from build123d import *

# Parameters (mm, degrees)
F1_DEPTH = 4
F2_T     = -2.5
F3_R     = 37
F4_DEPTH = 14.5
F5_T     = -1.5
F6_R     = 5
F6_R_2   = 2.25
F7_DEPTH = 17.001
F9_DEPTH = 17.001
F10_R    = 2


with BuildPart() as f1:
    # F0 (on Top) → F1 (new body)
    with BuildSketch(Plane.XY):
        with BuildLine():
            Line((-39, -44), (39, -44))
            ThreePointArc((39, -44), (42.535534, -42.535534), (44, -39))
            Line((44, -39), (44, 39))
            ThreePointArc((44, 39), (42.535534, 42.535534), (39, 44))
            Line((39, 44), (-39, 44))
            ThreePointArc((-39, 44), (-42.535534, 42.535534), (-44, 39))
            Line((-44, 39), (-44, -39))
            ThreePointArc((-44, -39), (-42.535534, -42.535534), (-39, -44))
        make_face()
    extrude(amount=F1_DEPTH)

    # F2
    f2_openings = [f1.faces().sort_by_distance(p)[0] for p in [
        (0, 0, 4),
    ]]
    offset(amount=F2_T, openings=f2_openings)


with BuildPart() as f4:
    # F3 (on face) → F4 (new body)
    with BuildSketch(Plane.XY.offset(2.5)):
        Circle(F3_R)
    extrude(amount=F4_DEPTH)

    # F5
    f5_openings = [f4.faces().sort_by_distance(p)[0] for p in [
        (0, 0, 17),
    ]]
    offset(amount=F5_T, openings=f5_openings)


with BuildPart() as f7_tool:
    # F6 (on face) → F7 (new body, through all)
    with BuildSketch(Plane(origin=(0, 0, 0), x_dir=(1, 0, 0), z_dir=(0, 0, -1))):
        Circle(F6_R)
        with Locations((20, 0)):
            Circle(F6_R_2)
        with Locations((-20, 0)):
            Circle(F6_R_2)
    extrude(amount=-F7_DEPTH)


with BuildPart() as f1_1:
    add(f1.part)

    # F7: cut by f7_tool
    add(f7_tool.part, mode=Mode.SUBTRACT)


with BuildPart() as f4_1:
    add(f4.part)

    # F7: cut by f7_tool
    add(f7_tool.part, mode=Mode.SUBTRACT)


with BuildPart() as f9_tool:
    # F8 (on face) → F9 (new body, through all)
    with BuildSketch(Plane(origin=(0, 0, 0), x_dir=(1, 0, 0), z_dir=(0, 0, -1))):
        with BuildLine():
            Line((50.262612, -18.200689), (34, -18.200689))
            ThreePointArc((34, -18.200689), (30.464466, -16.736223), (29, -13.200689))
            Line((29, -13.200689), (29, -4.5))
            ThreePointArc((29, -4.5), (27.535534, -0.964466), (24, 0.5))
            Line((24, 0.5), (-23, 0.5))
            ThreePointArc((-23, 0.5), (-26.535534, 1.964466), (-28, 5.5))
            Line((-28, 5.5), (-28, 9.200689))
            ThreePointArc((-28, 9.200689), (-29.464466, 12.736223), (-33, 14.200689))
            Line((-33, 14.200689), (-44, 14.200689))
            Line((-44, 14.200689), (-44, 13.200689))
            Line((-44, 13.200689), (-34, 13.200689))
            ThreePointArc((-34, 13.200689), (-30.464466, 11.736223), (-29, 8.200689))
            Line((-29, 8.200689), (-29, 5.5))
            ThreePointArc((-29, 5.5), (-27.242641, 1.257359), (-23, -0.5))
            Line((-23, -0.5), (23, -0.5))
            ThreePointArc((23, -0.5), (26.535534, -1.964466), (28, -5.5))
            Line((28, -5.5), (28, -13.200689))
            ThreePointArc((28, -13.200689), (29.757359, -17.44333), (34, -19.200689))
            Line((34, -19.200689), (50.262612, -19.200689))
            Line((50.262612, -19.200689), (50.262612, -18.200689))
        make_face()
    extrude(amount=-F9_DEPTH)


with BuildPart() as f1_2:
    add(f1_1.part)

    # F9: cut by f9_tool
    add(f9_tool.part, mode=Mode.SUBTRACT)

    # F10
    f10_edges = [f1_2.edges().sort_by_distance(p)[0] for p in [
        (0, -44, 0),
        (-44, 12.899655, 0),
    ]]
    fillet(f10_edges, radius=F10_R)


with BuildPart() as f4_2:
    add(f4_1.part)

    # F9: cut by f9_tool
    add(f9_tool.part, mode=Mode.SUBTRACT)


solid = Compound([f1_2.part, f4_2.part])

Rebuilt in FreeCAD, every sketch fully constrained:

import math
import FreeCAD as App
import Part
import Sketcher
from FreeCAD import Vector


def edges_at(feature, points):
    """Names of the edges that pass closest to the given points."""
    edges = feature.Shape.Edges
    near = lambda p: min(range(len(edges)), key=lambda i: edges[i].distToShape(Part.Vertex(*p))[0])
    return sorted({f"Edge{near(p) + 1}" for p in points})


def faces_at(feature, points):
    """Names of the faces that lie closest to the given points."""
    faces = feature.Shape.Faces
    near = lambda p: min(range(len(faces)), key=lambda i: faces[i].distToShape(Part.Vertex(*p))[0])
    return sorted({f"Face{near(p) + 1}" for p in points})

doc = App.newDocument("Part")
params = doc.addObject("Spreadsheet::Sheet", "Params")
for row, (alias, value) in enumerate([
    ("sketch1_radius", "5 mm"),
    ("sketch1_width", "78 mm"),
    ("pad1_length", "4 mm"),
    ("thickness_wall", "2.5 mm"),
    ("sketch2_diameter", "74 mm"),
    ("pad2_length", "14.5 mm"),
    ("thickness2_wall", "1.5 mm"),
    ("sketch3_diameter", "10 mm"),
    ("sketch3_diameter2", "4.5 mm"),
    ("pad3_length", "17.001 mm"),
    ("sketch4_radius", "5 mm"),
    ("sketch4_radius2", "5.999999 mm"),
    ("sketch4_width", "47 mm"),
    ("sketch4_width2", "11 mm"),
    ("pad4_length", "17.001 mm"),
    ("fillet_radius", "2 mm"),
], start=1):
    params.set(f"A{row}", alias)
    params.set(f"B{row}", "=" + value)
    params.setAlias(f"B{row}", alias)

body = doc.addObject("PartDesign::Body", "Body")

sketch1 = body.newObject("Sketcher::SketchObject", "Sketch")
sketch1.AttachmentSupport = (doc.getObject("XY_Plane"), [""])
sketch1.MapMode = "FlatFace"
sketch1.addGeometry([
    Part.LineSegment(Vector(-39, -44, 0), Vector(39, -44, 0)),
    Part.ArcOfCircle(Part.Circle(Vector(39, -39, 0), Vector(0, 0, 1), 5), math.radians(-90.000004), math.radians(0.000004)),
    Part.LineSegment(Vector(44, -39, 0), Vector(44, 39, 0)),
    Part.ArcOfCircle(Part.Circle(Vector(39, 39, 0), Vector(0, 0, 1), 5), math.radians(-0.000004), math.radians(90.000004)),
    Part.LineSegment(Vector(39, 44, 0), Vector(-39, 44, 0)),
    Part.ArcOfCircle(Part.Circle(Vector(-39, 39, 0), Vector(0, 0, 1), 5), math.radians(89.999996), math.radians(180.000004)),
    Part.LineSegment(Vector(-44, 39, 0), Vector(-44, -39, 0)),
    Part.ArcOfCircle(Part.Circle(Vector(-39, -39, 0), Vector(0, 0, 1), 5), math.radians(179.999996), math.radians(270.000004)),
], False)
sketch1.addConstraint([
    Sketcher.Constraint("Tangent", 0, 2, 1, 1),
    Sketcher.Constraint("Tangent", 1, 2, 2, 1),
    Sketcher.Constraint("Tangent", 2, 2, 3, 1),
    Sketcher.Constraint("Tangent", 3, 2, 4, 1),
    Sketcher.Constraint("Tangent", 4, 2, 5, 1),
    Sketcher.Constraint("Tangent", 5, 2, 6, 1),
    Sketcher.Constraint("Tangent", 6, 2, 7, 1),
    Sketcher.Constraint("Tangent", 7, 2, 0, 1),
    Sketcher.Constraint("Horizontal", 0),
    Sketcher.Constraint("Vertical", 2),
    Sketcher.Constraint("Horizontal", 4),
    Sketcher.Constraint("Vertical", 6),
    Sketcher.Constraint("Equal", 1, 3),
    Sketcher.Constraint("Equal", 3, 5),
    Sketcher.Constraint("Equal", 5, 7),
    Sketcher.Constraint("Symmetric", 1, 3, 5, 3, -1, 1),
    Sketcher.Constraint("Equal", 4, 2),
    Sketcher.Constraint("Radius", 1, 5.0),
    Sketcher.Constraint("DistanceX", 0, 1, 0, 2, 78.0),
])
sketch1.setExpression("Constraints[17]", "Params.sketch1_radius")
sketch1.setExpression("Constraints[18]", "Params.sketch1_width")
pad1 = body.newObject("PartDesign::Pad", "Pad")
pad1.Profile = sketch1
pad1.setExpression("Length", "Params.pad1_length")
doc.recompute()

thickness = body.newObject("PartDesign::Thickness", "Thickness")
thickness.Base = (pad1, faces_at(pad1, [(0, 0, 4)]))
thickness.setExpression("Value", "Params.thickness_wall")
thickness.Reversed = True
thickness.Join = "Arc"
body2 = doc.addObject("PartDesign::Body", "Body001")

sketch2 = body2.newObject("Sketcher::SketchObject", "Sketch001")
sketch2.AttachmentSupport = (doc.getObject("XY_Plane001"), [""])
sketch2.MapMode = "FlatFace"
sketch2.AttachmentOffset = App.Placement(Vector(0, 0, 2.5), App.Rotation())
sketch2.addGeometry(Part.Circle(Vector(0, 0, 0), Vector(0, 0, 1), 37), False)
sketch2.addConstraint([
    Sketcher.Constraint("Coincident", 0, 3, -1, 1),
    Sketcher.Constraint("Diameter", 0, 74.0),
])
sketch2.setExpression("Constraints[1]", "Params.sketch2_diameter")
pad2 = body2.newObject("PartDesign::Pad", "Pad001")
pad2.Profile = sketch2
pad2.setExpression("Length", "Params.pad2_length")
doc.recompute()

thickness2 = body2.newObject("PartDesign::Thickness", "Thickness001")
thickness2.Base = (pad2, faces_at(pad2, [(0, 0, 17)]))
thickness2.setExpression("Value", "Params.thickness2_wall")
thickness2.Reversed = True
thickness2.Join = "Arc"
body3 = doc.addObject("PartDesign::Body", "Body002")
body3.AllowCompound = True

sketch3 = body3.newObject("Sketcher::SketchObject", "Sketch002")
sketch3.AttachmentSupport = (doc.getObject("XY_Plane002"), [""])
sketch3.MapMode = "FlatFace"
sketch3.addGeometry([
    Part.Circle(Vector(0, 0, 0), Vector(0, 0, 1), 5),
    Part.Circle(Vector(20, 0, 0), Vector(0, 0, 1), 2.25),
    Part.Circle(Vector(-20, 0, 0), Vector(0, 0, 1), 2.25),
], False)
sketch3.addConstraint([
    Sketcher.Constraint("Coincident", 0, 3, -1, 1),
    Sketcher.Constraint("Equal", 1, 2),
    Sketcher.Constraint("Symmetric", 1, 3, 2, 3, -1, 1),
    Sketcher.Constraint("PointOnObject", 1, 3, -1),
    Sketcher.Constraint("Diameter", 0, 10.0),
    Sketcher.Constraint("Diameter", 1, 4.5),
    Sketcher.Constraint("DistanceX", -1, 1, 1, 3, 20.0),
])
sketch3.setExpression("Constraints[4]", "Params.sketch3_diameter")
sketch3.setExpression("Constraints[5]", "Params.sketch3_diameter2")
pad3 = body3.newObject("PartDesign::Pad", "Pad002")
pad3.Profile = sketch3
pad3.setExpression("Length", "Params.pad3_length")
doc.recompute()

body4 = doc.addObject("PartDesign::Body", "Body003")
body4.BaseFeature = body3
boolean = body.newObject("PartDesign::Boolean", "Boolean")
boolean.Type = "Cut"
boolean.addObjects([body4])
doc.recompute()

boolean2 = body2.newObject("PartDesign::Boolean", "Boolean001")
boolean2.Type = "Cut"
boolean2.addObjects([body3])
body5 = doc.addObject("PartDesign::Body", "Body004")

sketch4 = body5.newObject("Sketcher::SketchObject", "Sketch003")
sketch4.AttachmentSupport = (doc.getObject("XY_Plane004"), [""])
sketch4.MapMode = "FlatFace"
sketch4.addGeometry([
    Part.LineSegment(Vector(50.262612, 18.200689, 0), Vector(34, 18.200689, 0)),
    Part.ArcOfCircle(Part.Circle(Vector(34, 13.200689, 0), Vector(0, 0, 1), 5), math.radians(89.999996), math.radians(180.000004)),
    Part.LineSegment(Vector(29, 13.200689, 0), Vector(29, 4.5, 0)),
    Part.ArcOfCircle(Part.Circle(Vector(24, 4.5, 0), Vector(0, 0, 1), 5), math.radians(-90.000004), math.radians(0.000004)),
    Part.LineSegment(Vector(24, -0.5, 0), Vector(-23, -0.5, 0)),
    Part.ArcOfCircle(Part.Circle(Vector(-23, -5.5, 0), Vector(0, 0, 1), 5), math.radians(89.999996), math.radians(180.000004)),
    Part.LineSegment(Vector(-28, -5.5, 0), Vector(-28, -9.200689, 0)),
    Part.ArcOfCircle(Part.Circle(Vector(-33, -9.200689, 0), Vector(0, 0, 1), 5), math.radians(-90.000004), math.radians(0.000004)),
    Part.LineSegment(Vector(-33, -14.200689, 0), Vector(-44, -14.200689, 0)),
    Part.LineSegment(Vector(-44, -14.200689, 0), Vector(-44, -13.200689, 0)),
    Part.LineSegment(Vector(-44, -13.200689, 0), Vector(-34, -13.200689, 0)),
    Part.ArcOfCircle(Part.Circle(Vector(-34, -8.200689, 0), Vector(0, 0, 1), 5), math.radians(-90.000004), math.radians(0.000004)),
    Part.LineSegment(Vector(-29, -8.200689, 0), Vector(-29, -5.5, 0)),
    Part.ArcOfCircle(Part.Circle(Vector(-23.000001, -5.499999, 0), Vector(0, 0, 1), 5.999999), math.radians(89.99999), math.radians(180.00001)),
    Part.LineSegment(Vector(-23, 0.5, 0), Vector(23, 0.5, 0)),
    Part.ArcOfCircle(Part.Circle(Vector(23, 5.5, 0), Vector(0, 0, 1), 5), math.radians(-90.000004), math.radians(0.000004)),
    Part.LineSegment(Vector(28, 5.5, 0), Vector(28, 13.200689, 0)),
    Part.ArcOfCircle(Part.Circle(Vector(33.999999, 13.20069, 0), Vector(0, 0, 1), 5.999999), math.radians(89.99999), math.radians(180.00001)),
    Part.LineSegment(Vector(34, 19.200689, 0), Vector(50.262612, 19.200689, 0)),
    Part.LineSegment(Vector(50.262612, 19.200689, 0), Vector(50.262612, 18.200689, 0)),
], False)
sketch4.addConstraint([
    Sketcher.Constraint("Tangent", 0, 2, 1, 1),
    Sketcher.Constraint("Tangent", 1, 2, 2, 1),
    Sketcher.Constraint("Tangent", 2, 2, 3, 2),
    Sketcher.Constraint("Tangent", 3, 1, 4, 1),
    Sketcher.Constraint("Tangent", 4, 2, 5, 1),
    Sketcher.Constraint("Tangent", 5, 2, 6, 1),
    Sketcher.Constraint("Tangent", 6, 2, 7, 2),
    Sketcher.Constraint("Tangent", 7, 1, 8, 1),
    Sketcher.Constraint("Coincident", 8, 2, 9, 1),
    Sketcher.Constraint("Coincident", 9, 2, 10, 1),
    Sketcher.Constraint("Tangent", 10, 2, 11, 1),
    Sketcher.Constraint("Tangent", 11, 2, 12, 1),
    Sketcher.Constraint("Tangent", 12, 2, 13, 2),
    Sketcher.Constraint("Tangent", 13, 1, 14, 1),
    Sketcher.Constraint("Tangent", 14, 2, 15, 1),
    Sketcher.Constraint("Tangent", 15, 2, 16, 1),
    Sketcher.Constraint("Tangent", 16, 2, 17, 2),
    Sketcher.Constraint("Tangent", 17, 1, 18, 1),
    Sketcher.Constraint("Coincident", 18, 2, 19, 1),
    Sketcher.Constraint("Coincident", 19, 2, 0, 1),
    Sketcher.Constraint("Horizontal", 0),
    Sketcher.Constraint("Vertical", 2),
    Sketcher.Constraint("Horizontal", 4),
    Sketcher.Constraint("Vertical", 6),
    Sketcher.Constraint("Horizontal", 8),
    Sketcher.Constraint("Vertical", 9),
    Sketcher.Constraint("Horizontal", 10),
    Sketcher.Constraint("Vertical", 12),
    Sketcher.Constraint("Horizontal", 14),
    Sketcher.Constraint("Vertical", 16),
    Sketcher.Constraint("Horizontal", 18),
    Sketcher.Constraint("Vertical", 19),
    Sketcher.Constraint("Coincident", 13, 3, 5, 3),
    Sketcher.Constraint("Coincident", 17, 3, 1, 3),
    Sketcher.Constraint("Equal", 1, 3),
    Sketcher.Constraint("Equal", 3, 5),
    Sketcher.Constraint("Equal", 5, 7),
    Sketcher.Constraint("Equal", 7, 11),
    Sketcher.Constraint("Equal", 11, 15),
    Sketcher.Constraint("Equal", 13, 17),
    Sketcher.Constraint("Symmetric", 5, 3, 15, 3, -1, 1),
    Sketcher.Constraint("Equal", 9, 19),
    Sketcher.Constraint("Radius", 1, 5.0),
    Sketcher.Constraint("Radius", 13, 5.999999),
    Sketcher.Constraint("DistanceX", 4, 2, 4, 1, 47.0),
    Sketcher.Constraint("DistanceX", 8, 2, 8, 1, 11.0),
    Sketcher.Constraint("DistanceX", 0, 2, 0, 1, 16.262612),
    Sketcher.Constraint("DistanceY", 2, 2, 2, 1, 8.700689),
    Sketcher.Constraint("DistanceY", 6, 2, 6, 1, 3.700689),
])
sketch4.setExpression("Constraints[42]", "Params.sketch4_radius")
sketch4.setExpression("Constraints[43]", "Params.sketch4_radius2")
sketch4.setExpression("Constraints[44]", "Params.sketch4_width")
sketch4.setExpression("Constraints[45]", "Params.sketch4_width2")
pad4 = body5.newObject("PartDesign::Pad", "Pad003")
pad4.Profile = sketch4
pad4.setExpression("Length", "Params.pad4_length")
body.AllowCompound = True
doc.recompute()

body6 = doc.addObject("PartDesign::Body", "Body005")
body6.BaseFeature = body5
boolean3 = body.newObject("PartDesign::Boolean", "Boolean002")
boolean3.Type = "Cut"
boolean3.addObjects([body6])
doc.recompute()

fillet = body.newObject("PartDesign::Fillet", "Fillet")
fillet.Base = (boolean3, edges_at(boolean3, [(0, -44, 0), (-44, 12.9, 0)]))
fillet.setExpression("Radius", "Params.fillet_radius")
body2.AllowCompound = True
doc.recompute()

boolean4 = body2.newObject("PartDesign::Boolean", "Boolean003")
boolean4.Type = "Cut"
boolean4.addObjects([body5])

doc.recompute()
